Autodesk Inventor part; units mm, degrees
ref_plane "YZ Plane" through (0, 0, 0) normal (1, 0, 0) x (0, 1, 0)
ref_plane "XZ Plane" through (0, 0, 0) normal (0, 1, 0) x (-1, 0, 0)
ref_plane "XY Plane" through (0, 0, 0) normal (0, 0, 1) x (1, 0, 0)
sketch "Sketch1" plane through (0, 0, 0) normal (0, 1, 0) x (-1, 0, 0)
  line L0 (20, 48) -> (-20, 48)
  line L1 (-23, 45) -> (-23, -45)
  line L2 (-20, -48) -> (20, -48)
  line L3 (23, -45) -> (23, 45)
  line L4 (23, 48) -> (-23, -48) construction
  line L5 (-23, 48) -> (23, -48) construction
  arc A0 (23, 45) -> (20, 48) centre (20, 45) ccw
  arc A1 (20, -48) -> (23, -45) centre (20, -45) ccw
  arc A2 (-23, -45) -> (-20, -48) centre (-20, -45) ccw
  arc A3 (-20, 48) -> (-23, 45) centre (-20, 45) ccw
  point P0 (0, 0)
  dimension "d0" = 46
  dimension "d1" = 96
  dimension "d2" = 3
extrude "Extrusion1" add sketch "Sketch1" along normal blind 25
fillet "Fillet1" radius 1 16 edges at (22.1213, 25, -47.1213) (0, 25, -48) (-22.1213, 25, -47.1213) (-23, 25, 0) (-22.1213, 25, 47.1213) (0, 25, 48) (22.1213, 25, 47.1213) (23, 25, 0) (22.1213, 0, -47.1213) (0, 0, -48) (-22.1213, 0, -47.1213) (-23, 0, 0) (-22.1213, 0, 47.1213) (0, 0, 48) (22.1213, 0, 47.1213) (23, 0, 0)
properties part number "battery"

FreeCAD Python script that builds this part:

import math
import FreeCAD as App
import Part
import Sketcher
Q = App.Units.Quantity


def edges_at(feature, points):
    """Names of the edges that pass closest to the given points."""
    edges = feature.Shape.Edges
    near = lambda p: min(range(len(edges)), key=lambda i: edges[i].distToShape(Part.Vertex(*p))[0])
    return sorted({f"Edge{near(p) + 1}" for p in points})

doc = App.newDocument("Part")
body = doc.addObject("PartDesign::Body", "Body")

# Sketch on XZ plane
sketch1 = body.newObject("Sketcher::SketchObject", "Sketch")
sketch1.AttachmentSupport = (doc.getObject("XZ_Plane"), [""])
sketch1.MapMode = "FlatFace"
sketch1.addGeometry(Part.ArcOfCircle(Part.Circle(App.Vector(-20, 45, 0), App.Vector(0, 0, 1), 3), math.radians(90), math.radians(180)), False)
sketch1.addGeometry(Part.LineSegment(App.Vector(-20, 48, 0), App.Vector(20, 48, 0)), False)
sketch1.addGeometry(Part.ArcOfCircle(Part.Circle(App.Vector(20, 45, 0), App.Vector(0, 0, 1), 3), math.radians(0), math.radians(90)), False)
sketch1.addGeometry(Part.LineSegment(App.Vector(23, 45, 0), App.Vector(23, -45, 0)), False)
sketch1.addGeometry(Part.ArcOfCircle(Part.Circle(App.Vector(20, -45, 0), App.Vector(0, 0, 1), 3), math.radians(-90), math.radians(0)), False)
sketch1.addGeometry(Part.LineSegment(App.Vector(20, -48, 0), App.Vector(-20, -48, 0)), False)
sketch1.addGeometry(Part.ArcOfCircle(Part.Circle(App.Vector(-20, -45, 0), App.Vector(0, 0, 1), 3), math.radians(180), math.radians(270)), False)
sketch1.addGeometry(Part.LineSegment(App.Vector(-23, -45, 0), App.Vector(-23, 45, 0)), False)
sketch1.addConstraint(Sketcher.Constraint("Tangent", 0, 1, 1, 1))
sketch1.addConstraint(Sketcher.Constraint("Tangent", 1, 2, 2, 2))
sketch1.addConstraint(Sketcher.Constraint("Tangent", 2, 1, 3, 1))
sketch1.addConstraint(Sketcher.Constraint("Tangent", 3, 2, 4, 2))
sketch1.addConstraint(Sketcher.Constraint("Tangent", 4, 1, 5, 1))
sketch1.addConstraint(Sketcher.Constraint("Tangent", 5, 2, 6, 2))
sketch1.addConstraint(Sketcher.Constraint("Tangent", 6, 1, 7, 1))
sketch1.addConstraint(Sketcher.Constraint("Tangent", 7, 2, 0, 2))
sketch1.addConstraint(Sketcher.Constraint("Horizontal", 1))
sketch1.addConstraint(Sketcher.Constraint("Vertical", 3))
sketch1.addConstraint(Sketcher.Constraint("Horizontal", 5))
sketch1.addConstraint(Sketcher.Constraint("Vertical", 7))
sketch1.addConstraint(Sketcher.Constraint("Equal", 0, 2))
sketch1.addConstraint(Sketcher.Constraint("Equal", 2, 4))
sketch1.addConstraint(Sketcher.Constraint("Equal", 4, 6))
sketch1.addConstraint(Sketcher.Constraint("Symmetric", 0, 3, 4, 3, -1, 1))
sketch1.addConstraint(Sketcher.Constraint("Radius", 0, Q("3 mm")))
sketch1.addConstraint(Sketcher.Constraint("DistanceX", 6, 1, 3, 2, Q("46 mm")))
sketch1.addConstraint(Sketcher.Constraint("DistanceY", 3, 2, 3, 1, Q("90 mm")))
pad1 = body.newObject("PartDesign::Pad", "Pad")
pad1.Profile = sketch1
pad1.Length = 25
pad1.Reversed = True
doc.recompute()

fillet = body.newObject("PartDesign::Fillet", "Fillet")
fillet.Base = (pad1, edges_at(pad1, [
    (22.121, 25, -47.121),
    (0, 25, -48),
    (-22.121, 25, -47.121),
    (-23, 25, 0),
    (-22.121, 25, 47.121),
    (0, 25, 48),
    (22.121, 25, 47.121),
    (23, 25, 0),
    (22.121, 0, -47.121),
    (0, 0, -48),
    (-22.121, 0, -47.121),
    (-23, 0, 0),
    (-22.121, 0, 47.121),
    (0, 0, 48),
    (22.121, 0, 47.121),
    (23, 0, 0),
]))
fillet.Radius = 1

doc.recompute()
